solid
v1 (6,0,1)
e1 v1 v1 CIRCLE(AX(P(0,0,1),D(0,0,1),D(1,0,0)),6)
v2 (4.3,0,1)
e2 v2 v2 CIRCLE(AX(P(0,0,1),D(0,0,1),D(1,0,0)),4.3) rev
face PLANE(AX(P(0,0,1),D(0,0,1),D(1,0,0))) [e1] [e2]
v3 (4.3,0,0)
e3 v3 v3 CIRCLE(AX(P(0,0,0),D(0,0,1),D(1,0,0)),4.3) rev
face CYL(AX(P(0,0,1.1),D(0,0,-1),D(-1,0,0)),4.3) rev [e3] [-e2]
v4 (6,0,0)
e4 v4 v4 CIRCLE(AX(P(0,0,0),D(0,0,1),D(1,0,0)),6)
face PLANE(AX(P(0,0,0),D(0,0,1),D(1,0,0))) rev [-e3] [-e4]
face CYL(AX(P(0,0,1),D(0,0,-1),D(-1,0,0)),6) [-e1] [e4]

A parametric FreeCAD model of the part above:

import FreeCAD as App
import Part
import Sketcher
from FreeCAD import Vector

doc = App.newDocument("Part")
body = doc.addObject("PartDesign::Body", "Body")

# Sketch on XY plane
sketch1 = body.newObject("Sketcher::SketchObject", "Sketch")
sketch1.AttachmentSupport = (doc.getObject("XY_Plane"), [""])
sketch1.MapMode = "FlatFace"
sketch1.addGeometry(Part.Circle(Vector(0, 0, 0), Vector(0, 0, 1), 6), False)
sketch1.addConstraint([
    Sketcher.Constraint("Coincident", 0, 3, -1, 1),
    Sketcher.Constraint("Diameter", 0, 12.0),
])
pad1 = body.newObject("PartDesign::Pad", "Pad")
pad1.Profile = sketch1
pad1.Length = 1

# Sketch on XY plane
sketch2 = body.newObject("Sketcher::SketchObject", "Sketch001")
sketch2.AttachmentSupport = (doc.getObject("XY_Plane"), [""])
sketch2.MapMode = "FlatFace"
sketch2.AttachmentOffset = App.Placement(Vector(0, 0, -0.1), App.Rotation())
sketch2.addGeometry(Part.Circle(Vector(0, 0, 0), Vector(0, 0, 1), 4.3), False)
sketch2.addConstraint([
    Sketcher.Constraint("Coincident", 0, 3, -1, 1),
    Sketcher.Constraint("Diameter", 0, 8.6),
])
pocket1 = body.newObject("PartDesign::Pocket", "Pocket")
pocket1.Profile = sketch2
pocket1.Length = 1.2
pocket1.Reversed = True

doc.recompute()
